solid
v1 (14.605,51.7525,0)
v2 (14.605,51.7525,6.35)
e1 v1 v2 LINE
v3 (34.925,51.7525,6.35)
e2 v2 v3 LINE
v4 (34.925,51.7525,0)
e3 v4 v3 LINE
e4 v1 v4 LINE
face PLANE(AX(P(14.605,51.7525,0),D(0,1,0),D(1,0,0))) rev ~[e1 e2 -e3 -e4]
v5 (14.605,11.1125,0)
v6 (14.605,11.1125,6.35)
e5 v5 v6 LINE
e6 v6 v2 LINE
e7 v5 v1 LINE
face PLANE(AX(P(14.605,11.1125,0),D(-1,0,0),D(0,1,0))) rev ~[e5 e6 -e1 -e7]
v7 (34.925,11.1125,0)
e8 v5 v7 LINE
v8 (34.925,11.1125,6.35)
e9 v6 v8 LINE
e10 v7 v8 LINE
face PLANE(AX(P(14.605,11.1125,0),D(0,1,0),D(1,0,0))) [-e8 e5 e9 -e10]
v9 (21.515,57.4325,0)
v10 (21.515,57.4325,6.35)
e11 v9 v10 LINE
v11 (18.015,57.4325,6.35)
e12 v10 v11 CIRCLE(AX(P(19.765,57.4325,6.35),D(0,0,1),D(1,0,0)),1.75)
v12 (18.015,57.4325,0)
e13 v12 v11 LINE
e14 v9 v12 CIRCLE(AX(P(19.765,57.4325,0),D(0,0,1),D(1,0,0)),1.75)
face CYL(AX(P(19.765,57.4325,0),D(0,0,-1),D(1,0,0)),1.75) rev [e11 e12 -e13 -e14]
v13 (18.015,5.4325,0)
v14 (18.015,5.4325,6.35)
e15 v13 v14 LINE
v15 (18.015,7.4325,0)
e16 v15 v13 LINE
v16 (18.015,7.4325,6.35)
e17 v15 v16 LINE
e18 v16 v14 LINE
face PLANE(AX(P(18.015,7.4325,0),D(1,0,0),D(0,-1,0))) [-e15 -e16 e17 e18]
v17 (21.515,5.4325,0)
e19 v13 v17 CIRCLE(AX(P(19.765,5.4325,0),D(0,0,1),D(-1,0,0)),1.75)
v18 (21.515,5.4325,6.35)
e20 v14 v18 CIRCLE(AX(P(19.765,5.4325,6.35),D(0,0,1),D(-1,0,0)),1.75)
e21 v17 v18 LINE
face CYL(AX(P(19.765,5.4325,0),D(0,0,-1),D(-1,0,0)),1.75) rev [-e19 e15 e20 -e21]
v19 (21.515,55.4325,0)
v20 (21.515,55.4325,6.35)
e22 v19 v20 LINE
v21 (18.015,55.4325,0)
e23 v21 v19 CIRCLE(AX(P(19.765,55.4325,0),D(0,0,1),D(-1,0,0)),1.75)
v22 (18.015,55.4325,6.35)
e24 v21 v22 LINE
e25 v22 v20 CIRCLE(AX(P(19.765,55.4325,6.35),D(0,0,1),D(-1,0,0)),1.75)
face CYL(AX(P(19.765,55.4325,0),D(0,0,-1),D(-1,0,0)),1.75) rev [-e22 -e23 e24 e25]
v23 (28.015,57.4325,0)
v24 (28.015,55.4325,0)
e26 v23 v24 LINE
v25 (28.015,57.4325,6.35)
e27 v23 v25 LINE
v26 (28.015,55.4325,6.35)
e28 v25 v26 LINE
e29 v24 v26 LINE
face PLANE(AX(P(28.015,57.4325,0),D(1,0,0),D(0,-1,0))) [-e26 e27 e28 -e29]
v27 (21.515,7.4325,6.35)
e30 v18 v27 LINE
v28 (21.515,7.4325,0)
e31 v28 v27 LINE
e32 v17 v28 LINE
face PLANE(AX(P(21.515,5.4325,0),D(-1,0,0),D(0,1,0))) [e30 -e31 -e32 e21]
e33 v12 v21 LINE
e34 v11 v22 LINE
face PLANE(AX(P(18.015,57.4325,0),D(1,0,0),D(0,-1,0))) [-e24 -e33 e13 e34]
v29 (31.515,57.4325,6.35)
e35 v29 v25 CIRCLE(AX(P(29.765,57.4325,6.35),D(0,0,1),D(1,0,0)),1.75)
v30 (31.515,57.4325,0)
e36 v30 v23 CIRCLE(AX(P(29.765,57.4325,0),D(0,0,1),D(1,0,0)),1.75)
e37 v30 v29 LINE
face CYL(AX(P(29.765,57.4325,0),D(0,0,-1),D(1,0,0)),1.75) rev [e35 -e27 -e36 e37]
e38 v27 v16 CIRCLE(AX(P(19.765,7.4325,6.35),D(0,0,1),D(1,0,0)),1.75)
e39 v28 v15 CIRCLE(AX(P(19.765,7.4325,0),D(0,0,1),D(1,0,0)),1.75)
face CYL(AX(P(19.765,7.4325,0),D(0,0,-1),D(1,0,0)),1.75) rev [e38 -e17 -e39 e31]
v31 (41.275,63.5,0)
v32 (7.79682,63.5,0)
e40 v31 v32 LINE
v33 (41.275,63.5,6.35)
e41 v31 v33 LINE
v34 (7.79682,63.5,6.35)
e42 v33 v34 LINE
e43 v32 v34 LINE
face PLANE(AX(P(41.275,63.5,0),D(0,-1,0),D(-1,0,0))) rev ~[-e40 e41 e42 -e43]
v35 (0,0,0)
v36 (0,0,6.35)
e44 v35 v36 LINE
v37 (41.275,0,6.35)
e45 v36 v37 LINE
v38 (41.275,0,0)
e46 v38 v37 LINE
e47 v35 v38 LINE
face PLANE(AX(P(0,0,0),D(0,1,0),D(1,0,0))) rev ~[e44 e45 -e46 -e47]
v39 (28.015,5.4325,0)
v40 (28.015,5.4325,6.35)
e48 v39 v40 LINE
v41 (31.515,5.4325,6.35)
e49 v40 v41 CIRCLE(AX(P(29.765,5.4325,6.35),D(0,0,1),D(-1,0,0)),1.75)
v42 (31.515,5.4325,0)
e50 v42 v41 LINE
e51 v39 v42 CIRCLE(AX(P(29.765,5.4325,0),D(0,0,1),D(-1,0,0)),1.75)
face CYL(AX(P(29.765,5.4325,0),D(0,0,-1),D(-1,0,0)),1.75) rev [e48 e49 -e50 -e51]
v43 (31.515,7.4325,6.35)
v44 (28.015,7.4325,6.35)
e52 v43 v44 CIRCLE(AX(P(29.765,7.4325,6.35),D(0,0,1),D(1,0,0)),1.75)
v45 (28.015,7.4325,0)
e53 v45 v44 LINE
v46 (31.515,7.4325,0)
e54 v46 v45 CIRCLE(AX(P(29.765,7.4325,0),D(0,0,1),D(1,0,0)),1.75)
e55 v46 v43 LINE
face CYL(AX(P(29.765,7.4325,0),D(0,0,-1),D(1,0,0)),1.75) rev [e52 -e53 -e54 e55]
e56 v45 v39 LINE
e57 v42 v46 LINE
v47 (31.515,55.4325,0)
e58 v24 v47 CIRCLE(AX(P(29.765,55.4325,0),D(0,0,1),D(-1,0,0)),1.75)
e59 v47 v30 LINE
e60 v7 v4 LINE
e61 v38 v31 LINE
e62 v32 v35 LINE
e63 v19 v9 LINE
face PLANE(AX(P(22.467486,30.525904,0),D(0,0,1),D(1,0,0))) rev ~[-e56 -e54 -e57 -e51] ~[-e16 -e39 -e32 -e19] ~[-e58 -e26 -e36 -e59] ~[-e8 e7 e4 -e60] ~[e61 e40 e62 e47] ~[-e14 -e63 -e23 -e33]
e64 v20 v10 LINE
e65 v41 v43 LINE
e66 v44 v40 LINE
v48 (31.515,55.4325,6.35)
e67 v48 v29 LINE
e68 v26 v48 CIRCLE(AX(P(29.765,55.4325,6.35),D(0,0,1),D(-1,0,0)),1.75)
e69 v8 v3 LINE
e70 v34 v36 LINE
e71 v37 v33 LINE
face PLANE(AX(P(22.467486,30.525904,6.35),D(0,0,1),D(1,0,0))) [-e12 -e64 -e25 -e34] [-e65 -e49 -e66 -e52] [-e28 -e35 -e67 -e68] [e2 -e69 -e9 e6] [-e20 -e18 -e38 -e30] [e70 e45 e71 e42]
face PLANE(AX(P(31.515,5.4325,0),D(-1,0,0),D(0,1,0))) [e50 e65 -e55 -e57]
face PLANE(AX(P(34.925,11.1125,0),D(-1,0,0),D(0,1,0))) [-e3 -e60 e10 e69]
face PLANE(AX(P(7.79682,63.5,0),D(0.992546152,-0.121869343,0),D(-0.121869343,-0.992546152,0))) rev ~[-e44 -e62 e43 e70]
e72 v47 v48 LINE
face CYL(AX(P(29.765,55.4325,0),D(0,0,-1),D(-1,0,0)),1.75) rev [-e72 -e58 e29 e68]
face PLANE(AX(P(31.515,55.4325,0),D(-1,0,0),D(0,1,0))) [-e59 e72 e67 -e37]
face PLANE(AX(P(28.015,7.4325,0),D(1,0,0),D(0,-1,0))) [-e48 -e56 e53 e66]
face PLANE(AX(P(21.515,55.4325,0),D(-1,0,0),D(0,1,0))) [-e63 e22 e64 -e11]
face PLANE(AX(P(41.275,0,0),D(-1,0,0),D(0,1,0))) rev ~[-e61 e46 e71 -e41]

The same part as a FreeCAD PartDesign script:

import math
import FreeCAD as App
import Part
import Sketcher
Q = App.Units.Quantity

doc = App.newDocument("Part")
body = doc.addObject("PartDesign::Body", "Body")

sketch1 = body.newObject("Sketcher::SketchObject", "Sketch")
sketch1.AttachmentSupport = (doc.getObject("XY_Plane"), [""])
sketch1.MapMode = "FlatFace"
sketch1.addGeometry(Part.LineSegment(App.Vector(0, 0, 0), App.Vector(41.3, 0, 0)), False)
sketch1.addGeometry(Part.LineSegment(App.Vector(41.3, 0, 0), App.Vector(41.3, 63.5, 0)), False)
sketch1.addGeometry(Part.LineSegment(App.Vector(41.3, 63.5, 0), App.Vector(7.8, 63.5, 0)), False)
sketch1.addGeometry(Part.LineSegment(App.Vector(7.8, 63.5, 0), App.Vector(0, 0, 0)), False)
sketch1.addGeometry(Part.ArcOfCircle(Part.Circle(App.Vector(19.8, 5.4, 0), App.Vector(0, 0, 1), 1.8), math.radians(180), math.radians(360)), False)
sketch1.addGeometry(Part.LineSegment(App.Vector(18, 5.4, 0), App.Vector(18, 7.4, 0)), False)
sketch1.addGeometry(Part.ArcOfCircle(Part.Circle(App.Vector(19.8, 7.4, 0), App.Vector(0, 0, 1), 1.8), math.radians(0), math.radians(180)), False)
sketch1.addGeometry(Part.LineSegment(App.Vector(21.5, 7.4, 0), App.Vector(21.5, 5.4, 0)), False)
sketch1.addGeometry(Part.ArcOfCircle(Part.Circle(App.Vector(29.8, 5.4, 0), App.Vector(0, 0, 1), 1.8), math.radians(180), math.radians(360)), False)
sketch1.addGeometry(Part.LineSegment(App.Vector(28, 5.4, 0), App.Vector(28, 7.4, 0)), False)
sketch1.addGeometry(Part.ArcOfCircle(Part.Circle(App.Vector(29.8, 7.4, 0), App.Vector(0, 0, 1), 1.8), math.radians(0), math.radians(180)), False)
sketch1.addGeometry(Part.LineSegment(App.Vector(31.5, 7.4, 0), App.Vector(31.5, 5.4, 0)), False)
sketch1.addGeometry(Part.LineSegment(App.Vector(34.9, 11.1, 0), App.Vector(14.6, 11.1, 0)), False)
sketch1.addGeometry(Part.LineSegment(App.Vector(14.6, 11.1, 0), App.Vector(14.6, 51.8, 0)), False)
sketch1.addGeometry(Part.LineSegment(App.Vector(14.6, 51.8, 0), App.Vector(34.9, 51.8, 0)), False)
sketch1.addGeometry(Part.LineSegment(App.Vector(34.9, 51.8, 0), App.Vector(34.9, 11.1, 0)), False)
sketch1.addGeometry(Part.ArcOfCircle(Part.Circle(App.Vector(19.8, 57.4, 0), App.Vector(0, 0, 1), 1.8), math.radians(0), math.radians(180)), False)
sketch1.addGeometry(Part.LineSegment(App.Vector(21.5, 57.4, 0), App.Vector(21.5, 55.4, 0)), False)
sketch1.addGeometry(Part.ArcOfCircle(Part.Circle(App.Vector(19.8, 55.4, 0), App.Vector(0, 0, 1), 1.8), math.radians(180), math.radians(360)), False)
sketch1.addGeometry(Part.LineSegment(App.Vector(18, 55.4, 0), App.Vector(18, 57.4, 0)), False)
sketch1.addGeometry(Part.ArcOfCircle(Part.Circle(App.Vector(29.8, 57.4, 0), App.Vector(0, 0, 1), 1.8), math.radians(0), math.radians(180)), False)
sketch1.addGeometry(Part.LineSegment(App.Vector(31.5, 57.4, 0), App.Vector(31.5, 55.4, 0)), False)
sketch1.addGeometry(Part.ArcOfCircle(Part.Circle(App.Vector(29.8, 55.4, 0), App.Vector(0, 0, 1), 1.8), math.radians(180), math.radians(360)), False)
sketch1.addGeometry(Part.LineSegment(App.Vector(28, 55.4, 0), App.Vector(28, 57.4, 0)), False)
sketch1.addConstraint(Sketcher.Constraint("Coincident", 0, 2, 1, 1))
sketch1.addConstraint(Sketcher.Constraint("Coincident", 1, 2, 2, 1))
sketch1.addConstraint(Sketcher.Constraint("Coincident", 2, 2, 3, 1))
sketch1.addConstraint(Sketcher.Constraint("Coincident", 3, 2, 0, 1))
sketch1.addConstraint(Sketcher.Constraint("Tangent", 4, 1, 5, 1))
sketch1.addConstraint(Sketcher.Constraint("Tangent", 5, 2, 6, 2))
sketch1.addConstraint(Sketcher.Constraint("Tangent", 6, 1, 7, 1))
sketch1.addConstraint(Sketcher.Constraint("Tangent", 7, 2, 4, 2))
sketch1.addConstraint(Sketcher.Constraint("Tangent", 8, 1, 9, 1))
sketch1.addConstraint(Sketcher.Constraint("Tangent", 9, 2, 10, 2))
sketch1.addConstraint(Sketcher.Constraint("Tangent", 10, 1, 11, 1))
sketch1.addConstraint(Sketcher.Constraint("Tangent", 11, 2, 8, 2))
sketch1.addConstraint(Sketcher.Constraint("Coincident", 12, 2, 13, 1))
sketch1.addConstraint(Sketcher.Constraint("Coincident", 13, 2, 14, 1))
sketch1.addConstraint(Sketcher.Constraint("Coincident", 14, 2, 15, 1))
sketch1.addConstraint(Sketcher.Constraint("Coincident", 15, 2, 12, 1))
sketch1.addConstraint(Sketcher.Constraint("Tangent", 16, 1, 17, 1))
sketch1.addConstraint(Sketcher.Constraint("Tangent", 17, 2, 18, 2))
sketch1.addConstraint(Sketcher.Constraint("Tangent", 18, 1, 19, 1))
sketch1.addConstraint(Sketcher.Constraint("Tangent", 19, 2, 16, 2))
sketch1.addConstraint(Sketcher.Constraint("Tangent", 20, 1, 21, 1))
sketch1.addConstraint(Sketcher.Constraint("Tangent", 21, 2, 22, 2))
sketch1.addConstraint(Sketcher.Constraint("Tangent", 22, 1, 23, 1))
sketch1.addConstraint(Sketcher.Constraint("Tangent", 23, 2, 20, 2))
sketch1.addConstraint(Sketcher.Constraint("Horizontal", 0))
sketch1.addConstraint(Sketcher.Constraint("Vertical", 1))
sketch1.addConstraint(Sketcher.Constraint("Horizontal", 2))
sketch1.addConstraint(Sketcher.Constraint("Vertical", 5))
sketch1.addConstraint(Sketcher.Constraint("Vertical", 7))
sketch1.addConstraint(Sketcher.Constraint("Vertical", 9))
sketch1.addConstraint(Sketcher.Constraint("Vertical", 11))
sketch1.addConstraint(Sketcher.Constraint("Horizontal", 12))
sketch1.addConstraint(Sketcher.Constraint("Vertical", 13))
sketch1.addConstraint(Sketcher.Constraint("Horizontal", 14))
sketch1.addConstraint(Sketcher.Constraint("Vertical", 15))
sketch1.addConstraint(Sketcher.Constraint("Vertical", 17))
sketch1.addConstraint(Sketcher.Constraint("Vertical", 19))
sketch1.addConstraint(Sketcher.Constraint("Vertical", 21))
sketch1.addConstraint(Sketcher.Constraint("Vertical", 23))
sketch1.addConstraint(Sketcher.Constraint("Coincident", 3, 2, -1, 1))
sketch1.addConstraint(Sketcher.Constraint("Equal", 6, 8))
sketch1.addConstraint(Sketcher.Constraint("Equal", 10, 16))
sketch1.addConstraint(Sketcher.Constraint("Equal", 18, 20))
sketch1.addConstraint(Sketcher.Constraint("Horizontal", 4, 3, 8, 3))
sketch1.addConstraint(Sketcher.Constraint("Horizontal", 6, 3, 10, 3))
sketch1.addConstraint(Sketcher.Constraint("Horizontal", 16, 3, 20, 3))
sketch1.addConstraint(Sketcher.Constraint("Horizontal", 18, 3, 22, 3))
sketch1.addConstraint(Sketcher.Constraint("Vertical", 6, 3, 16, 3))
sketch1.addConstraint(Sketcher.Constraint("Vertical", 10, 3, 20, 3))
sketch1.addConstraint(Sketcher.Constraint("Equal", 11, 17))
sketch1.addConstraint(Sketcher.Constraint("DistanceX", 12, 2, 12, 1, Q("0.8 in")))
sketch1.addConstraint(Sketcher.Constraint("DistanceY", 1, 1, 1, 2, Q("2.5 in")))
sketch1.addConstraint(Sketcher.Constraint("DistanceY", 13, 1, 13, 2, Q("1.6 in")))
sketch1.addConstraint(Sketcher.Constraint("Angle", 3, Q("-97 deg")))
sketch1.addConstraint(Sketcher.Constraint("DistanceX", 0, 1, 0, 2, Q("1.625 in")))
sketch1.addConstraint(Sketcher.Constraint("Radius", 4, Q("1.75 mm")))
sketch1.addConstraint(Sketcher.Constraint("DistanceX", 14, 2, 1, 2, Q("0.25 in")))
sketch1.addConstraint(Sketcher.Constraint("DistanceY", -1, 1, 12, 2, Q("0.4375 in")))
sketch1.addConstraint(Sketcher.Constraint("DistanceY", 5, 1, 5, 2, Q("2 mm")))
sketch1.addConstraint(Sketcher.Constraint("DistanceX", -1, 1, 4, 3, Q("19.765 mm")))
sketch1.addConstraint(Sketcher.Constraint("DistanceY", -1, 1, 4, 3, Q("5.4325 mm")))
sketch1.addConstraint(Sketcher.Constraint("DistanceX", -1, 1, 8, 3, Q("29.765 mm")))
sketch1.addConstraint(Sketcher.Constraint("DistanceY", -1, 1, 16, 3, Q("57.4325 mm")))
pad1 = body.newObject("PartDesign::Pad", "Pad")
pad1.Profile = sketch1
pad1.Length = Q("0.25 in")

doc.recompute()
